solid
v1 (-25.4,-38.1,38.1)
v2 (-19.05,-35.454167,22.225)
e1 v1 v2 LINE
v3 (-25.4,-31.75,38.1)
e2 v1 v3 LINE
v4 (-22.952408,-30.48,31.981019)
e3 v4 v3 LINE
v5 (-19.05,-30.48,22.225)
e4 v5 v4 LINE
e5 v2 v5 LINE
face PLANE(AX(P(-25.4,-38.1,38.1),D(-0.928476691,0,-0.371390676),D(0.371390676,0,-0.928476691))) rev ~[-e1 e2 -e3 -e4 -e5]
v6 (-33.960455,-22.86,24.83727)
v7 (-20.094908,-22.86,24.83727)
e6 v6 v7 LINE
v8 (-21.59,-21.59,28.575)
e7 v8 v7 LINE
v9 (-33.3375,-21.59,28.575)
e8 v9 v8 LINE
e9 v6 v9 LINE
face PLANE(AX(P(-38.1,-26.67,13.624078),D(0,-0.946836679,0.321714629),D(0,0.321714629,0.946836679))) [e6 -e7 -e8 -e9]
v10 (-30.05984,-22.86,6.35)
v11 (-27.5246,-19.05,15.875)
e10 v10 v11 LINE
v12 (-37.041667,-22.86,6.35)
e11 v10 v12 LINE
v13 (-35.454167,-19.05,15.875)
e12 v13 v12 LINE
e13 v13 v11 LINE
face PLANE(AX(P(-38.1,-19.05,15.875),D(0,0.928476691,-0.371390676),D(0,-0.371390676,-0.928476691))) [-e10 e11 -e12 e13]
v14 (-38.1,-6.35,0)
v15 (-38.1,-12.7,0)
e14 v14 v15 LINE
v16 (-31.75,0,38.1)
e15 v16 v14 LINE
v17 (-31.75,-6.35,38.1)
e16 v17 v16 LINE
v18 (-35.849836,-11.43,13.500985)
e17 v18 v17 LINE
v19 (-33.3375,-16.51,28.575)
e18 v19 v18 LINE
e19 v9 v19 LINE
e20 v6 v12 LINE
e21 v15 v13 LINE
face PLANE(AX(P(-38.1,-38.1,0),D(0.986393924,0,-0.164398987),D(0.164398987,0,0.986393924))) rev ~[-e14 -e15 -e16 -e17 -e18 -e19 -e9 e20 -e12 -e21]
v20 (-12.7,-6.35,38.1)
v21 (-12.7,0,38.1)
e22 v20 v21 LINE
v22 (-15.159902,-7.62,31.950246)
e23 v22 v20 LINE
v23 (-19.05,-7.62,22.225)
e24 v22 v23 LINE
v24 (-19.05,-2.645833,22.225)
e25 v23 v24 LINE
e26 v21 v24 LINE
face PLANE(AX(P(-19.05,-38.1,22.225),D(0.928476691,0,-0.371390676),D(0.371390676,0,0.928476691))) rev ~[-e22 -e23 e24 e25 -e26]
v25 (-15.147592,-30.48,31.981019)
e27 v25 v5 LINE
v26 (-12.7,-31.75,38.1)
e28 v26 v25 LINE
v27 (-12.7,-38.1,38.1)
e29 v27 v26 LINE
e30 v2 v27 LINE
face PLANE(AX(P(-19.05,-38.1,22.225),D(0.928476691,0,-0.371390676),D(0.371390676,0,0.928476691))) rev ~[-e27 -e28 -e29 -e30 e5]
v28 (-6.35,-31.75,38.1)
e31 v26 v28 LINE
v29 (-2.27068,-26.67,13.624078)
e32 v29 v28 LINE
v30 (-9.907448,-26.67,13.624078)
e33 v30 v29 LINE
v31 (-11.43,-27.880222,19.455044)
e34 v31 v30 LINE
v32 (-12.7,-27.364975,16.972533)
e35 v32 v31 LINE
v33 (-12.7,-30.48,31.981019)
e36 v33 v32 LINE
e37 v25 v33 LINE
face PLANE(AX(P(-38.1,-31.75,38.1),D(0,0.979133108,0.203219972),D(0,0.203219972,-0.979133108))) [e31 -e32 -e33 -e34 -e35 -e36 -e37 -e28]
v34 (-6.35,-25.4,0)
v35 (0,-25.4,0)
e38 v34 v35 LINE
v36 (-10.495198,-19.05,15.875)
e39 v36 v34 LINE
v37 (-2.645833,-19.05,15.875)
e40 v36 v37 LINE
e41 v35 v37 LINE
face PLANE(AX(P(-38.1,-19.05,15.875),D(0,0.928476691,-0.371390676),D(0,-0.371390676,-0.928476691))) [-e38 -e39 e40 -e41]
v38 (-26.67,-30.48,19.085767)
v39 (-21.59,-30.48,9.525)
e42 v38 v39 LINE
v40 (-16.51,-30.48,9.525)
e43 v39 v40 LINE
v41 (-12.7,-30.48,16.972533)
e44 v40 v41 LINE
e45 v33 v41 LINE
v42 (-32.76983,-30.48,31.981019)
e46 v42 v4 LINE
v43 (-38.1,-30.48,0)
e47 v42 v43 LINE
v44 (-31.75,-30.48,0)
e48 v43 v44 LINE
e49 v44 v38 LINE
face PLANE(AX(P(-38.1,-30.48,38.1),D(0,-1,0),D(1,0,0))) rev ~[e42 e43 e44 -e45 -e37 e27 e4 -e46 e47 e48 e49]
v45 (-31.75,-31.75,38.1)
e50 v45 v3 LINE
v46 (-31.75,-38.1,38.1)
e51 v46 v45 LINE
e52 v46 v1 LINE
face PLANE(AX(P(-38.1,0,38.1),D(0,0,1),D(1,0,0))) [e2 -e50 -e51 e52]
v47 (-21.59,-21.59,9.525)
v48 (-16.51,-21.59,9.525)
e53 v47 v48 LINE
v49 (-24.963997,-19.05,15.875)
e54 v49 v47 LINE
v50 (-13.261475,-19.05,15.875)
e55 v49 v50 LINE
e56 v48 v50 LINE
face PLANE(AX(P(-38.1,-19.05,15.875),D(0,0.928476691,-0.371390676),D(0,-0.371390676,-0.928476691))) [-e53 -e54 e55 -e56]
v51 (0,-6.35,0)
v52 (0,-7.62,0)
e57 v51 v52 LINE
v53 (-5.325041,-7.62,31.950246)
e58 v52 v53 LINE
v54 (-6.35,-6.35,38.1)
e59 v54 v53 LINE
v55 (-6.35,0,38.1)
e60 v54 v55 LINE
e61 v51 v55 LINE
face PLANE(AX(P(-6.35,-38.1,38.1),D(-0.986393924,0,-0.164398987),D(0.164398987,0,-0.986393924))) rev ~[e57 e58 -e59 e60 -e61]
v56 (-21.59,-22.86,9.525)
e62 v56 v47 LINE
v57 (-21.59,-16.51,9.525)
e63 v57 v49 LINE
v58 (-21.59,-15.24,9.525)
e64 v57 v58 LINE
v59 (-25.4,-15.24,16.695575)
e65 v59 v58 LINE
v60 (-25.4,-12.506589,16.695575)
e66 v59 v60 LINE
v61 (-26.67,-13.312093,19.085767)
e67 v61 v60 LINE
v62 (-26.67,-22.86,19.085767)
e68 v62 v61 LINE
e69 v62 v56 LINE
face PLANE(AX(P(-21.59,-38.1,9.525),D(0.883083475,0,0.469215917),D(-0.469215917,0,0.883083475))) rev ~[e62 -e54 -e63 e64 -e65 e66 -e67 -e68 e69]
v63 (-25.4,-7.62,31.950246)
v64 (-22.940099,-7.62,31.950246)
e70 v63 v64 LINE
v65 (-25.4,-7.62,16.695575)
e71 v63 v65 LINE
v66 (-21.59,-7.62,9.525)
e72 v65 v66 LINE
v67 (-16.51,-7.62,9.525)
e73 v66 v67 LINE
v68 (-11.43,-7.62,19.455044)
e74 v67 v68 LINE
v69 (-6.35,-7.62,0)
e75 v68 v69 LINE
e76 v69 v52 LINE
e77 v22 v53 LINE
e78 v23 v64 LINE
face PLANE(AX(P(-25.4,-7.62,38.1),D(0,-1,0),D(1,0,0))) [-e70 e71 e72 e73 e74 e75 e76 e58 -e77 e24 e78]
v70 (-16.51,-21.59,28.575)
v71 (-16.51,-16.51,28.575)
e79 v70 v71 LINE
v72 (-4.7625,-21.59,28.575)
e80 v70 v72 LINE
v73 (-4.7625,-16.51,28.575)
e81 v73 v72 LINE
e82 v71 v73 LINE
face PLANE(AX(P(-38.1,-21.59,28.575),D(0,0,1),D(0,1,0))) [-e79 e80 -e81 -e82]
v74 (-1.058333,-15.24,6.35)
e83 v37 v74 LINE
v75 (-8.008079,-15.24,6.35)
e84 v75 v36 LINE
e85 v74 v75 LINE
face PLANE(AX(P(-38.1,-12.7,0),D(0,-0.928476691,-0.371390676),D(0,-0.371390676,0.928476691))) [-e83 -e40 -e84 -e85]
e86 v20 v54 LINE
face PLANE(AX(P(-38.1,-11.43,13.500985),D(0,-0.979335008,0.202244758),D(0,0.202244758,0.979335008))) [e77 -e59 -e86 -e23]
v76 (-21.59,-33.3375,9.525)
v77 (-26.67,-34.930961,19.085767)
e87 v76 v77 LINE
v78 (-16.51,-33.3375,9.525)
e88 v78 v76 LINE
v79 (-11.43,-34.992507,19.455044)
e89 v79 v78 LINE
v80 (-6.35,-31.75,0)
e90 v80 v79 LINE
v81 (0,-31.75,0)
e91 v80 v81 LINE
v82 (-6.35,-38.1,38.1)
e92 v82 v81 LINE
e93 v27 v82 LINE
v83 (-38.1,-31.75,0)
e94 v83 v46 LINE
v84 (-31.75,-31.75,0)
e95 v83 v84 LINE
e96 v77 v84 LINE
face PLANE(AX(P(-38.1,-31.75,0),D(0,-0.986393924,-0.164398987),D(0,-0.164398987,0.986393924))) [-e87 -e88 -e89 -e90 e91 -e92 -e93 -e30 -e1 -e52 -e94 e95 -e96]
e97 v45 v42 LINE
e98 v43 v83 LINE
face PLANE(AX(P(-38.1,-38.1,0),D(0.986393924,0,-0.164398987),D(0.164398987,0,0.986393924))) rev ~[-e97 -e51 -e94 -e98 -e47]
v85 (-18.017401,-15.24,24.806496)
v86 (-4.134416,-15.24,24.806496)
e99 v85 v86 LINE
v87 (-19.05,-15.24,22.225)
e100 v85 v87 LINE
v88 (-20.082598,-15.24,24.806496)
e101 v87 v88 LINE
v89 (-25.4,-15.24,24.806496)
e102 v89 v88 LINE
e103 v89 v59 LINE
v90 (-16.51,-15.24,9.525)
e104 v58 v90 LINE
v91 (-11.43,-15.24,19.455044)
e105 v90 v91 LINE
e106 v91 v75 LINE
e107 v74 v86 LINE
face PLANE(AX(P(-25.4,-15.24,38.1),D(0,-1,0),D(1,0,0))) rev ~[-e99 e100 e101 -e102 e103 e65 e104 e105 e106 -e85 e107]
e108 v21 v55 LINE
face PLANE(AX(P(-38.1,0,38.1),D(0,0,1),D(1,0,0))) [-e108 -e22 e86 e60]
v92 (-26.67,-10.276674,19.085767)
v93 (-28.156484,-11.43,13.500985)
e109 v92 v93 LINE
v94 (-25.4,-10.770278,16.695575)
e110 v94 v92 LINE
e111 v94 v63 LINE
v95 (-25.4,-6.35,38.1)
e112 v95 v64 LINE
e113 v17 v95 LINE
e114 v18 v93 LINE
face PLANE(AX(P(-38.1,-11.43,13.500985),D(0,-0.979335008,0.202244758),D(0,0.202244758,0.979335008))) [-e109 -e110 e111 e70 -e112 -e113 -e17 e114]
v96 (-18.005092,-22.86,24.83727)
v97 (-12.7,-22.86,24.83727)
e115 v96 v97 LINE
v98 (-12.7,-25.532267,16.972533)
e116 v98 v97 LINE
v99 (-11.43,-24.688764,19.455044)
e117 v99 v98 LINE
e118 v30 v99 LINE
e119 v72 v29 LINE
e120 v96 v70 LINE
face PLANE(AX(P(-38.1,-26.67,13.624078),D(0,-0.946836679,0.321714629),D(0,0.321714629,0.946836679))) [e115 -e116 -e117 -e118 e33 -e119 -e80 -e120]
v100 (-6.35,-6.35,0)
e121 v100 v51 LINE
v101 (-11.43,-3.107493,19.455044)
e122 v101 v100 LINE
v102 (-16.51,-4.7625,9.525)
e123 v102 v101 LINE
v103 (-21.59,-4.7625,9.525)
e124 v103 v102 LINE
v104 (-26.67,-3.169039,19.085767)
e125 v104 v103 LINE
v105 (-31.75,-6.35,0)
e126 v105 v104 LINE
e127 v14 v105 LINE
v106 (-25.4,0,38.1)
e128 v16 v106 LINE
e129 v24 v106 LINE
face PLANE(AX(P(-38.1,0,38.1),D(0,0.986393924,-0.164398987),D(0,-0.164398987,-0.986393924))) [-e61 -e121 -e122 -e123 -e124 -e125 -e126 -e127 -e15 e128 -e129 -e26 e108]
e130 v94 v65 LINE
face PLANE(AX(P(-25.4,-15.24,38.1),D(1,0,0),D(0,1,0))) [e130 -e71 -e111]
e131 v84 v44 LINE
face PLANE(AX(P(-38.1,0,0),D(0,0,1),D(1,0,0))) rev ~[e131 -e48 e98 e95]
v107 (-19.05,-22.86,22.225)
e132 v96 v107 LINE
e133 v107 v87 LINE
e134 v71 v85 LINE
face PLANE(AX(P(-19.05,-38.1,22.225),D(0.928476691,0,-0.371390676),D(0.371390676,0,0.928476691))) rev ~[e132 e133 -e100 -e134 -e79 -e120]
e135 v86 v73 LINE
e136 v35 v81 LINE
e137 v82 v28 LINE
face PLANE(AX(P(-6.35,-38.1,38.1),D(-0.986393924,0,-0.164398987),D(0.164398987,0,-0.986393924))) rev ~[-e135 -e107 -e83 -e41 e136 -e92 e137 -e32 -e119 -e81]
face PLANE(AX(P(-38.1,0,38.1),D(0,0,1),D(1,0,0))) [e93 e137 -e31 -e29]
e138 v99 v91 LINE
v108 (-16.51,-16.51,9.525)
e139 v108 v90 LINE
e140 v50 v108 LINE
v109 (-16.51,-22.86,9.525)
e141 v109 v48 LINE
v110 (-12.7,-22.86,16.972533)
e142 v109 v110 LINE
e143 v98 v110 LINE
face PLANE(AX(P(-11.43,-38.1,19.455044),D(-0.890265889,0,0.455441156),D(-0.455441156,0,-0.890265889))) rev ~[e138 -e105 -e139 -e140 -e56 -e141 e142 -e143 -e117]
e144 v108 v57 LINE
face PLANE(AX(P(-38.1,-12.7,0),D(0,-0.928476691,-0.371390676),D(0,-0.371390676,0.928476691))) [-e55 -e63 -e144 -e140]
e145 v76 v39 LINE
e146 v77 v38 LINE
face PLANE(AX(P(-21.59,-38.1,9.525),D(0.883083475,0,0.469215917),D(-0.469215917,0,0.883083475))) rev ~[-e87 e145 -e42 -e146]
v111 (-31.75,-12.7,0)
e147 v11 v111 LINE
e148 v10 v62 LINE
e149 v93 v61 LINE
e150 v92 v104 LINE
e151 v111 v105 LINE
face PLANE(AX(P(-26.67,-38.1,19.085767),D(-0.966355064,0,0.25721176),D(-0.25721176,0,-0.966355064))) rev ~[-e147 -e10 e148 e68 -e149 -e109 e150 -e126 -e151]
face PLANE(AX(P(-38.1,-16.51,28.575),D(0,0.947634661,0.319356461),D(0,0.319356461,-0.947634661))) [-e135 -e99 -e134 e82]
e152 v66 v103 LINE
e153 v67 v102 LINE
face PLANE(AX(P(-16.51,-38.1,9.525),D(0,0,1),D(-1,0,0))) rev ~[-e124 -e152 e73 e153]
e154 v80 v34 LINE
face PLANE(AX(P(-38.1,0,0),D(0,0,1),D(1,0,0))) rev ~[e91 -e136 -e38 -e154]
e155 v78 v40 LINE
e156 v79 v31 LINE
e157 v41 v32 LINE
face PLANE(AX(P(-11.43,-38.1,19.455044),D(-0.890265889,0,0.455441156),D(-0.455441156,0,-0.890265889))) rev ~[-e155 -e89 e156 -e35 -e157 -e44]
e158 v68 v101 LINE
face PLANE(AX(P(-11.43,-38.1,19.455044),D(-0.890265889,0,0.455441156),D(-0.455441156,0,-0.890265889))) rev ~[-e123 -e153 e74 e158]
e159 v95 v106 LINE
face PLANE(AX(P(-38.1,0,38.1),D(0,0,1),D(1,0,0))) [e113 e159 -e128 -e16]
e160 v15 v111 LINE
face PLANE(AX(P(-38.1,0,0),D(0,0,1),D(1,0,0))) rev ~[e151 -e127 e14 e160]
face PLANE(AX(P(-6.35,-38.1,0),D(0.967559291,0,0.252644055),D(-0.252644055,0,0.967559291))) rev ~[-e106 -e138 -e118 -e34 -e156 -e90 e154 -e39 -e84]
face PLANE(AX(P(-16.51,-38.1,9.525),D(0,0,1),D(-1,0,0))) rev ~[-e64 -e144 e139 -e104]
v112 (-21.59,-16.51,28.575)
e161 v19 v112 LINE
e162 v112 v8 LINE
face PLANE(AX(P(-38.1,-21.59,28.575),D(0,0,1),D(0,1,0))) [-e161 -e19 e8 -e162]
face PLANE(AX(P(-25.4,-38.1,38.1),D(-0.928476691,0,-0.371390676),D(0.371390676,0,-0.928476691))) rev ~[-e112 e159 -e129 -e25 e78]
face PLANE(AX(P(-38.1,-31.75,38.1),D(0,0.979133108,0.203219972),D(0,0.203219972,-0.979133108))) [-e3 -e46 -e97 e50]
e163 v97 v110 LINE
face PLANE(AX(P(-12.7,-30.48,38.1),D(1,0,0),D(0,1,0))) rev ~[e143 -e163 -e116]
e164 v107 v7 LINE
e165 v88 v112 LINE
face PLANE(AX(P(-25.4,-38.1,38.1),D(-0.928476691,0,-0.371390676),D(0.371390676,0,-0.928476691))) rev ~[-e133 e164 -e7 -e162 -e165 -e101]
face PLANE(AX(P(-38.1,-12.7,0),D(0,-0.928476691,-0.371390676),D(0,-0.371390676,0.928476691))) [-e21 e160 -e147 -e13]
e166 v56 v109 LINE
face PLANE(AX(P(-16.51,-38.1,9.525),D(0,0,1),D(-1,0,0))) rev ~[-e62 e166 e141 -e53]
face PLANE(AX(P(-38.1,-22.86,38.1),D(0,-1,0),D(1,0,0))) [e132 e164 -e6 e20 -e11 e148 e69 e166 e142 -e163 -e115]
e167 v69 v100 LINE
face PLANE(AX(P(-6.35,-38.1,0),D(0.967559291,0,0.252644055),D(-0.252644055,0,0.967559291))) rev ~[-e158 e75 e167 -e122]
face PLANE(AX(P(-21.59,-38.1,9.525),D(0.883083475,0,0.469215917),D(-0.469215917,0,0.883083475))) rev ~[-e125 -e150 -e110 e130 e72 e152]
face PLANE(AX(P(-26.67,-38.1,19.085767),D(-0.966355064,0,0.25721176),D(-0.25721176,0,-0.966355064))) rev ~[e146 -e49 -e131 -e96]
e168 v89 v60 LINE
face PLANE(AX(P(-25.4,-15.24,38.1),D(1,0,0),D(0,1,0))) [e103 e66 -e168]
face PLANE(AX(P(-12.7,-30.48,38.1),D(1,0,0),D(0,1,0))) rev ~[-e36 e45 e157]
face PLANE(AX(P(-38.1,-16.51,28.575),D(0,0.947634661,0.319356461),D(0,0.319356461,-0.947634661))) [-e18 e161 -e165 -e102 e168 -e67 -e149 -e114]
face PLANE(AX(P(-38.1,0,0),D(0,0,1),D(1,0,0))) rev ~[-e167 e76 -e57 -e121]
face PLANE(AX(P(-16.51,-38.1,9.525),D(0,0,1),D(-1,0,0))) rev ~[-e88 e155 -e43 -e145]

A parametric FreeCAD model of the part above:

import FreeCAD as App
import Part
import Sketcher

V = App.Vector
Q = App.Units.Quantity

doc = App.newDocument("Part")
body = doc.addObject("PartDesign::Body", "Body")

sketch1 = doc.addObject("Sketcher::SketchObject", "Sketch")
body.addObject(sketch1)
sketch1.AttachmentSupport = (doc.XZ_Plane, [""])
sketch1.MapMode = "FlatFace"
sketch1.addGeometry([
    Part.LineSegment(V(-38, 38, 0), V(-38, 0, 0)),
    Part.LineSegment(V(-38, 0, 0), V(0, 0, 0)),
    Part.LineSegment(V(0, 0, 0), V(0, 38, 0)),
    Part.LineSegment(V(0, 38, 0), V(-38, 38, 0)),
], False)
sketch1.addConstraint([
    Sketcher.Constraint("Coincident", 0, 2, 1, 1),
    Sketcher.Constraint("Coincident", 1, 2, 2, 1),
    Sketcher.Constraint("Coincident", 2, 2, 3, 1),
    Sketcher.Constraint("Coincident", 3, 2, 0, 1),
    Sketcher.Constraint("Vertical", 0),
    Sketcher.Constraint("Horizontal", 1),
    Sketcher.Constraint("Vertical", 2),
    Sketcher.Constraint("Horizontal", 3),
    Sketcher.Constraint("Coincident", 1, 2, -1, 1),
    Sketcher.Constraint("Equal", 3, 0),
    Sketcher.Constraint("DistanceX", 1, 1, 1, 2, Q("1.5 in")),
])
pad1 = doc.addObject("PartDesign::Pad", "Pad")
body.addObject(pad1)
pad1.Profile = sketch1
pad1.Length = Q("1.5 in")

sketch2 = doc.addObject("Sketcher::SketchObject", "Sketch001")
body.addObject(sketch2)
sketch2.AttachmentSupport = (doc.YZ_Plane, [""])
sketch2.MapMode = "FlatFace"
sketch2.AttachmentOffset = App.Placement(V(0, 0, -1.5 * 25.4), App.Rotation())
sketch2.addGeometry([
    Part.LineSegment(V(-11, 14, 0), V(-6, 38, 0)),
    Part.LineSegment(V(-6, 38, 0), V(-32, 38, 0)),
    Part.LineSegment(V(-32, 38, 0), V(-27, 14, 0)),
    Part.LineSegment(V(-27, 14, 0), V(-22, 29, 0)),
    Part.LineSegment(V(-22, 29, 0), V(-17, 29, 0)),
    Part.LineSegment(V(-17, 29, 0), V(-11, 14, 0)),
    Part.LineSegment(V(-25, 0, 0), V(-13, 0, 0)),
    Part.LineSegment(V(-13, 0, 0), V(-19, 16, 0)),
    Part.LineSegment(V(-19, 16, 0), V(-25, 0, 0)),
    Part.LineSegment(V(-6, 0, 0), V(0, 0, 0)),
    Part.LineSegment(V(0, 0, 0), V(0, 38, 0)),
    Part.LineSegment(V(0, 38, 0), V(-6, 0, 0)),
    Part.LineSegment(V(-32, 0, 0), V(-38, 38, 0)),
    Part.LineSegment(V(-38, 38, 0), V(-38, 0, 0)),
    Part.LineSegment(V(-38, 0, 0), V(-32, 0, 0)),
], False)
sketch2.addConstraint([
    Sketcher.Constraint("Coincident", 0, 2, 1, 1),
    Sketcher.Constraint("Coincident", 1, 2, 2, 1),
    Sketcher.Constraint("Coincident", 2, 2, 3, 1),
    Sketcher.Constraint("Coincident", 3, 2, 4, 1),
    Sketcher.Constraint("Coincident", 4, 2, 5, 1),
    Sketcher.Constraint("Coincident", 5, 2, 0, 1),
    Sketcher.Constraint("Coincident", 6, 2, 7, 1),
    Sketcher.Constraint("Coincident", 7, 2, 8, 1),
    Sketcher.Constraint("Coincident", 8, 2, 6, 1),
    Sketcher.Constraint("Coincident", 9, 2, 10, 1),
    Sketcher.Constraint("Coincident", 10, 2, 11, 1),
    Sketcher.Constraint("Coincident", 11, 2, 9, 1),
    Sketcher.Constraint("Coincident", 12, 2, 13, 1),
    Sketcher.Constraint("Coincident", 13, 2, 14, 1),
    Sketcher.Constraint("Coincident", 14, 2, 12, 1),
    Sketcher.Constraint("Horizontal", 1),
    Sketcher.Constraint("Horizontal", 4),
    Sketcher.Constraint("Horizontal", 6),
    Sketcher.Constraint("Horizontal", 9),
    Sketcher.Constraint("Vertical", 10),
    Sketcher.Constraint("Vertical", 13),
    Sketcher.Constraint("Horizontal", 14),
    Sketcher.Constraint("Coincident", 9, 2, -1, 1),
    Sketcher.Constraint("PointOnObject", 6, 2, -1),
    Sketcher.Constraint("PointOnObject", 13, 2, -1),
    Sketcher.Constraint("Horizontal", 1, 2, 10, 2),
    Sketcher.Constraint("Horizontal", 10, 2, 12, 2),
    Sketcher.Constraint("Vertical", 0, 2, 11, 2),
    Sketcher.Constraint("Vertical", 1, 2, 14, 2),
    Sketcher.Constraint("Equal", 9, 14),
    Sketcher.Constraint("Equal", 7, 8),
    Sketcher.Constraint("DistanceX", 1, 2, 1, 1, Q("1 in")),
    Sketcher.Constraint("DistanceX", 4, 1, 4, 2, Q("0.2 in")),
    Sketcher.Constraint("DistanceX", 6, 1, 6, 2, Q("0.5 in")),
    Sketcher.Constraint("DistanceY", 10, 1, 10, 2, Q("1.5 in")),
    Sketcher.Constraint("DistanceX", 8, 2, -1, 1, Q("1 in")),
    Sketcher.Constraint("DistanceX", 13, 2, 6, 2, Q("1 in")),
    Sketcher.Constraint("DistanceX", 1, 2, 2, 2, Q("0.2 in")),
    Sketcher.Constraint("DistanceX", 1, 2, 3, 2, Q("0.4 in")),
    Sketcher.Constraint("DistanceX", 2, 2, 5, 2, Q("0.6 in")),
    Sketcher.Constraint("DistanceY", 7, 2, 3, 2, Q("0.5 in")),
    Sketcher.Constraint("DistanceY", -1, 1, 3, 2, Q("1.125 in")),
    Sketcher.Constraint("Distance", 0, Q("25.11808 mm")),
    Sketcher.Constraint("Distance", 3, Q("15.790392 mm")),
])
pocket1 = doc.addObject("PartDesign::Pocket", "Pocket")
body.addObject(pocket1)
pocket1.Profile = sketch2
pocket1.Length = Q("1.5 in")
pocket1.Reversed = True

sketch3 = doc.addObject("Sketcher::SketchObject", "Sketch002")
body.addObject(sketch3)
sketch3.AttachmentSupport = (doc.XZ_Plane, [""])
sketch3.MapMode = "FlatFace"
sketch3.AttachmentOffset = App.Placement(V(0, 0, 1.5 * 25.4), App.Rotation())
sketch3.addGeometry([
    Part.LineSegment(V(-32, 0, 0), V(-6, 0, 0)),
    Part.LineSegment(V(-6, 0, 0), V(-11, 19, 0)),
    Part.LineSegment(V(-11, 19, 0), V(-17, 10, 0)),
    Part.LineSegment(V(-17, 10, 0), V(-22, 10, 0)),
    Part.LineSegment(V(-22, 10, 0), V(-27, 19, 0)),
    Part.LineSegment(V(-27, 19, 0), V(-32, 0, 0)),
    Part.LineSegment(V(-6, 38, 0), V(0, 0, 0)),
    Part.LineSegment(V(0, 0, 0), V(0, 38, 0)),
    Part.LineSegment(V(0, 38, 0), V(-6, 38, 0)),
    Part.LineSegment(V(-19, 22, 0), V(-13, 38, 0)),
    Part.LineSegment(V(-13, 38, 0), V(-25, 38, 0)),
    Part.LineSegment(V(-25, 38, 0), V(-19, 22, 0)),
    Part.LineSegment(V(-38, 38, 0), V(-38, 0, 0)),
    Part.LineSegment(V(-38, 0, 0), V(-32, 38, 0)),
    Part.LineSegment(V(-32, 38, 0), V(-38, 38, 0)),
], False)
sketch3.addConstraint([
    Sketcher.Constraint("Coincident", 0, 2, 1, 1),
    Sketcher.Constraint("Coincident", 1, 2, 2, 1),
    Sketcher.Constraint("Coincident", 2, 2, 3, 1),
    Sketcher.Constraint("Coincident", 3, 2, 4, 1),
    Sketcher.Constraint("Coincident", 4, 2, 5, 1),
    Sketcher.Constraint("Coincident", 5, 2, 0, 1),
    Sketcher.Constraint("Coincident", 6, 2, 7, 1),
    Sketcher.Constraint("Coincident", 7, 2, 8, 1),
    Sketcher.Constraint("Coincident", 8, 2, 6, 1),
    Sketcher.Constraint("Coincident", 9, 2, 10, 1),
    Sketcher.Constraint("Coincident", 10, 2, 11, 1),
    Sketcher.Constraint("Coincident", 11, 2, 9, 1),
    Sketcher.Constraint("Coincident", 12, 2, 13, 1),
    Sketcher.Constraint("Coincident", 13, 2, 14, 1),
    Sketcher.Constraint("Coincident", 14, 2, 12, 1),
    Sketcher.Constraint("Horizontal", 0),
    Sketcher.Constraint("Horizontal", 3),
    Sketcher.Constraint("Vertical", 7),
    Sketcher.Constraint("Horizontal", 8),
    Sketcher.Constraint("Horizontal", 10),
    Sketcher.Constraint("Vertical", 12),
    Sketcher.Constraint("Horizontal", 14),
    Sketcher.Constraint("Coincident", 6, 2, -1, 1),
    Sketcher.Constraint("PointOnObject", 0, 2, -1),
    Sketcher.Constraint("PointOnObject", 12, 2, -1),
    Sketcher.Constraint("Horizontal", 8, 2, 9, 2),
    Sketcher.Constraint("Horizontal", 10, 2, 13, 2),
    Sketcher.Constraint("Vertical", 0, 2, 8, 2),
    Sketcher.Constraint("Vertical", 5, 2, 13, 2),
    Sketcher.Constraint("Equal", 8, 14),
    Sketcher.Constraint("Equal", 9, 11),
    Sketcher.Constraint("DistanceX", 0, 1, 0, 2, Q("1 in")),
    Sketcher.Constraint("DistanceX", 3, 2, 3, 1, Q("0.2 in")),
    Sketcher.Constraint("DistanceX", 10, 2, 10, 1, Q("0.5 in")),
    Sketcher.Constraint("DistanceY", 7, 1, 7, 2, Q("1.5 in")),
    Sketcher.Constraint("DistanceX", 10, 2, -1, 1, Q("1 in")),
    Sketcher.Constraint("DistanceX", 14, 2, 9, 2, Q("1 in")),
    Sketcher.Constraint("DistanceX", 1, 2, 0, 2, Q("0.2 in")),
    Sketcher.Constraint("DistanceX", 2, 2, 1, 2, Q("0.2 in")),
    Sketcher.Constraint("DistanceX", 4, 2, 3, 2, Q("0.2 in")),
    Sketcher.Constraint("DistanceY", 2, 2, 11, 2, Q("0.5 in")),
    Sketcher.Constraint("DistanceY", -1, 1, 2, 2, Q("0.375 in")),
    Sketcher.Constraint("Distance", 1, Q("20.10734 mm")),
    Sketcher.Constraint("Distance", 4, Q("10.826572 mm")),
])
pocket2 = doc.addObject("PartDesign::Pocket", "Pocket001")
body.addObject(pocket2)
pocket2.Profile = sketch3
pocket2.Length = Q("1.5 in")

sketch4 = doc.addObject("Sketcher::SketchObject", "Sketch003")
body.addObject(sketch4)
sketch4.AttachmentSupport = (doc.XY_Plane, [""])
sketch4.MapMode = "FlatFace"
sketch4.AttachmentOffset = App.Placement(V(0, 0, 1.5 * 25.4), App.Rotation())
sketch4.addGeometry([
    Part.LineSegment(V(-25, -8, 0), V(-25, -15, 0)),
    Part.LineSegment(V(-25, -15, 0), V(0, -15, 0)),
    Part.LineSegment(V(0, -15, 0), V(0, -8, 0)),
    Part.LineSegment(V(0, -8, 0), V(-25, -8, 0)),
    Part.LineSegment(V(-38, -23, 0), V(-38, -30, 0)),
    Part.LineSegment(V(-38, -30, 0), V(-13, -30, 0)),
    Part.LineSegment(V(-13, -30, 0), V(-13, -23, 0)),
    Part.LineSegment(V(-13, -23, 0), V(-38, -23, 0)),
], False)
sketch4.addConstraint([
    Sketcher.Constraint("Coincident", 0, 2, 1, 1),
    Sketcher.Constraint("Coincident", 1, 2, 2, 1),
    Sketcher.Constraint("Coincident", 2, 2, 3, 1),
    Sketcher.Constraint("Coincident", 3, 2, 0, 1),
    Sketcher.Constraint("Coincident", 4, 2, 5, 1),
    Sketcher.Constraint("Coincident", 5, 2, 6, 1),
    Sketcher.Constraint("Coincident", 6, 2, 7, 1),
    Sketcher.Constraint("Coincident", 7, 2, 4, 1),
    Sketcher.Constraint("Vertical", 0),
    Sketcher.Constraint("Horizontal", 1),
    Sketcher.Constraint("Vertical", 2),
    Sketcher.Constraint("Horizontal", 3),
    Sketcher.Constraint("Vertical", 4),
    Sketcher.Constraint("Horizontal", 5),
    Sketcher.Constraint("Vertical", 6),
    Sketcher.Constraint("Horizontal", 7),
    Sketcher.Constraint("PointOnObject", 1, 2, -2),
    Sketcher.Constraint("Equal", 3, 5),
    Sketcher.Constraint("Equal", 2, 4),
    Sketcher.Constraint("DistanceX", 1, 1, 1, 2, Q("1 in")),
    Sketcher.Constraint("DistanceY", 0, 2, 0, 1, Q("0.3 in")),
    Sketcher.Constraint("DistanceY", 0, 2, -1, 1, Q("0.6 in")),
    Sketcher.Constraint("DistanceX", 4, 2, -1, 1, Q("1.5 in")),
    Sketcher.Constraint("DistanceY", 4, 2, -1, 1, Q("1.2 in")),
])
pocket3 = doc.addObject("PartDesign::Pocket", "Pocket002")
body.addObject(pocket3)
pocket3.Profile = sketch4
pocket3.Length = Q("1.5 in")

doc.recompute()
